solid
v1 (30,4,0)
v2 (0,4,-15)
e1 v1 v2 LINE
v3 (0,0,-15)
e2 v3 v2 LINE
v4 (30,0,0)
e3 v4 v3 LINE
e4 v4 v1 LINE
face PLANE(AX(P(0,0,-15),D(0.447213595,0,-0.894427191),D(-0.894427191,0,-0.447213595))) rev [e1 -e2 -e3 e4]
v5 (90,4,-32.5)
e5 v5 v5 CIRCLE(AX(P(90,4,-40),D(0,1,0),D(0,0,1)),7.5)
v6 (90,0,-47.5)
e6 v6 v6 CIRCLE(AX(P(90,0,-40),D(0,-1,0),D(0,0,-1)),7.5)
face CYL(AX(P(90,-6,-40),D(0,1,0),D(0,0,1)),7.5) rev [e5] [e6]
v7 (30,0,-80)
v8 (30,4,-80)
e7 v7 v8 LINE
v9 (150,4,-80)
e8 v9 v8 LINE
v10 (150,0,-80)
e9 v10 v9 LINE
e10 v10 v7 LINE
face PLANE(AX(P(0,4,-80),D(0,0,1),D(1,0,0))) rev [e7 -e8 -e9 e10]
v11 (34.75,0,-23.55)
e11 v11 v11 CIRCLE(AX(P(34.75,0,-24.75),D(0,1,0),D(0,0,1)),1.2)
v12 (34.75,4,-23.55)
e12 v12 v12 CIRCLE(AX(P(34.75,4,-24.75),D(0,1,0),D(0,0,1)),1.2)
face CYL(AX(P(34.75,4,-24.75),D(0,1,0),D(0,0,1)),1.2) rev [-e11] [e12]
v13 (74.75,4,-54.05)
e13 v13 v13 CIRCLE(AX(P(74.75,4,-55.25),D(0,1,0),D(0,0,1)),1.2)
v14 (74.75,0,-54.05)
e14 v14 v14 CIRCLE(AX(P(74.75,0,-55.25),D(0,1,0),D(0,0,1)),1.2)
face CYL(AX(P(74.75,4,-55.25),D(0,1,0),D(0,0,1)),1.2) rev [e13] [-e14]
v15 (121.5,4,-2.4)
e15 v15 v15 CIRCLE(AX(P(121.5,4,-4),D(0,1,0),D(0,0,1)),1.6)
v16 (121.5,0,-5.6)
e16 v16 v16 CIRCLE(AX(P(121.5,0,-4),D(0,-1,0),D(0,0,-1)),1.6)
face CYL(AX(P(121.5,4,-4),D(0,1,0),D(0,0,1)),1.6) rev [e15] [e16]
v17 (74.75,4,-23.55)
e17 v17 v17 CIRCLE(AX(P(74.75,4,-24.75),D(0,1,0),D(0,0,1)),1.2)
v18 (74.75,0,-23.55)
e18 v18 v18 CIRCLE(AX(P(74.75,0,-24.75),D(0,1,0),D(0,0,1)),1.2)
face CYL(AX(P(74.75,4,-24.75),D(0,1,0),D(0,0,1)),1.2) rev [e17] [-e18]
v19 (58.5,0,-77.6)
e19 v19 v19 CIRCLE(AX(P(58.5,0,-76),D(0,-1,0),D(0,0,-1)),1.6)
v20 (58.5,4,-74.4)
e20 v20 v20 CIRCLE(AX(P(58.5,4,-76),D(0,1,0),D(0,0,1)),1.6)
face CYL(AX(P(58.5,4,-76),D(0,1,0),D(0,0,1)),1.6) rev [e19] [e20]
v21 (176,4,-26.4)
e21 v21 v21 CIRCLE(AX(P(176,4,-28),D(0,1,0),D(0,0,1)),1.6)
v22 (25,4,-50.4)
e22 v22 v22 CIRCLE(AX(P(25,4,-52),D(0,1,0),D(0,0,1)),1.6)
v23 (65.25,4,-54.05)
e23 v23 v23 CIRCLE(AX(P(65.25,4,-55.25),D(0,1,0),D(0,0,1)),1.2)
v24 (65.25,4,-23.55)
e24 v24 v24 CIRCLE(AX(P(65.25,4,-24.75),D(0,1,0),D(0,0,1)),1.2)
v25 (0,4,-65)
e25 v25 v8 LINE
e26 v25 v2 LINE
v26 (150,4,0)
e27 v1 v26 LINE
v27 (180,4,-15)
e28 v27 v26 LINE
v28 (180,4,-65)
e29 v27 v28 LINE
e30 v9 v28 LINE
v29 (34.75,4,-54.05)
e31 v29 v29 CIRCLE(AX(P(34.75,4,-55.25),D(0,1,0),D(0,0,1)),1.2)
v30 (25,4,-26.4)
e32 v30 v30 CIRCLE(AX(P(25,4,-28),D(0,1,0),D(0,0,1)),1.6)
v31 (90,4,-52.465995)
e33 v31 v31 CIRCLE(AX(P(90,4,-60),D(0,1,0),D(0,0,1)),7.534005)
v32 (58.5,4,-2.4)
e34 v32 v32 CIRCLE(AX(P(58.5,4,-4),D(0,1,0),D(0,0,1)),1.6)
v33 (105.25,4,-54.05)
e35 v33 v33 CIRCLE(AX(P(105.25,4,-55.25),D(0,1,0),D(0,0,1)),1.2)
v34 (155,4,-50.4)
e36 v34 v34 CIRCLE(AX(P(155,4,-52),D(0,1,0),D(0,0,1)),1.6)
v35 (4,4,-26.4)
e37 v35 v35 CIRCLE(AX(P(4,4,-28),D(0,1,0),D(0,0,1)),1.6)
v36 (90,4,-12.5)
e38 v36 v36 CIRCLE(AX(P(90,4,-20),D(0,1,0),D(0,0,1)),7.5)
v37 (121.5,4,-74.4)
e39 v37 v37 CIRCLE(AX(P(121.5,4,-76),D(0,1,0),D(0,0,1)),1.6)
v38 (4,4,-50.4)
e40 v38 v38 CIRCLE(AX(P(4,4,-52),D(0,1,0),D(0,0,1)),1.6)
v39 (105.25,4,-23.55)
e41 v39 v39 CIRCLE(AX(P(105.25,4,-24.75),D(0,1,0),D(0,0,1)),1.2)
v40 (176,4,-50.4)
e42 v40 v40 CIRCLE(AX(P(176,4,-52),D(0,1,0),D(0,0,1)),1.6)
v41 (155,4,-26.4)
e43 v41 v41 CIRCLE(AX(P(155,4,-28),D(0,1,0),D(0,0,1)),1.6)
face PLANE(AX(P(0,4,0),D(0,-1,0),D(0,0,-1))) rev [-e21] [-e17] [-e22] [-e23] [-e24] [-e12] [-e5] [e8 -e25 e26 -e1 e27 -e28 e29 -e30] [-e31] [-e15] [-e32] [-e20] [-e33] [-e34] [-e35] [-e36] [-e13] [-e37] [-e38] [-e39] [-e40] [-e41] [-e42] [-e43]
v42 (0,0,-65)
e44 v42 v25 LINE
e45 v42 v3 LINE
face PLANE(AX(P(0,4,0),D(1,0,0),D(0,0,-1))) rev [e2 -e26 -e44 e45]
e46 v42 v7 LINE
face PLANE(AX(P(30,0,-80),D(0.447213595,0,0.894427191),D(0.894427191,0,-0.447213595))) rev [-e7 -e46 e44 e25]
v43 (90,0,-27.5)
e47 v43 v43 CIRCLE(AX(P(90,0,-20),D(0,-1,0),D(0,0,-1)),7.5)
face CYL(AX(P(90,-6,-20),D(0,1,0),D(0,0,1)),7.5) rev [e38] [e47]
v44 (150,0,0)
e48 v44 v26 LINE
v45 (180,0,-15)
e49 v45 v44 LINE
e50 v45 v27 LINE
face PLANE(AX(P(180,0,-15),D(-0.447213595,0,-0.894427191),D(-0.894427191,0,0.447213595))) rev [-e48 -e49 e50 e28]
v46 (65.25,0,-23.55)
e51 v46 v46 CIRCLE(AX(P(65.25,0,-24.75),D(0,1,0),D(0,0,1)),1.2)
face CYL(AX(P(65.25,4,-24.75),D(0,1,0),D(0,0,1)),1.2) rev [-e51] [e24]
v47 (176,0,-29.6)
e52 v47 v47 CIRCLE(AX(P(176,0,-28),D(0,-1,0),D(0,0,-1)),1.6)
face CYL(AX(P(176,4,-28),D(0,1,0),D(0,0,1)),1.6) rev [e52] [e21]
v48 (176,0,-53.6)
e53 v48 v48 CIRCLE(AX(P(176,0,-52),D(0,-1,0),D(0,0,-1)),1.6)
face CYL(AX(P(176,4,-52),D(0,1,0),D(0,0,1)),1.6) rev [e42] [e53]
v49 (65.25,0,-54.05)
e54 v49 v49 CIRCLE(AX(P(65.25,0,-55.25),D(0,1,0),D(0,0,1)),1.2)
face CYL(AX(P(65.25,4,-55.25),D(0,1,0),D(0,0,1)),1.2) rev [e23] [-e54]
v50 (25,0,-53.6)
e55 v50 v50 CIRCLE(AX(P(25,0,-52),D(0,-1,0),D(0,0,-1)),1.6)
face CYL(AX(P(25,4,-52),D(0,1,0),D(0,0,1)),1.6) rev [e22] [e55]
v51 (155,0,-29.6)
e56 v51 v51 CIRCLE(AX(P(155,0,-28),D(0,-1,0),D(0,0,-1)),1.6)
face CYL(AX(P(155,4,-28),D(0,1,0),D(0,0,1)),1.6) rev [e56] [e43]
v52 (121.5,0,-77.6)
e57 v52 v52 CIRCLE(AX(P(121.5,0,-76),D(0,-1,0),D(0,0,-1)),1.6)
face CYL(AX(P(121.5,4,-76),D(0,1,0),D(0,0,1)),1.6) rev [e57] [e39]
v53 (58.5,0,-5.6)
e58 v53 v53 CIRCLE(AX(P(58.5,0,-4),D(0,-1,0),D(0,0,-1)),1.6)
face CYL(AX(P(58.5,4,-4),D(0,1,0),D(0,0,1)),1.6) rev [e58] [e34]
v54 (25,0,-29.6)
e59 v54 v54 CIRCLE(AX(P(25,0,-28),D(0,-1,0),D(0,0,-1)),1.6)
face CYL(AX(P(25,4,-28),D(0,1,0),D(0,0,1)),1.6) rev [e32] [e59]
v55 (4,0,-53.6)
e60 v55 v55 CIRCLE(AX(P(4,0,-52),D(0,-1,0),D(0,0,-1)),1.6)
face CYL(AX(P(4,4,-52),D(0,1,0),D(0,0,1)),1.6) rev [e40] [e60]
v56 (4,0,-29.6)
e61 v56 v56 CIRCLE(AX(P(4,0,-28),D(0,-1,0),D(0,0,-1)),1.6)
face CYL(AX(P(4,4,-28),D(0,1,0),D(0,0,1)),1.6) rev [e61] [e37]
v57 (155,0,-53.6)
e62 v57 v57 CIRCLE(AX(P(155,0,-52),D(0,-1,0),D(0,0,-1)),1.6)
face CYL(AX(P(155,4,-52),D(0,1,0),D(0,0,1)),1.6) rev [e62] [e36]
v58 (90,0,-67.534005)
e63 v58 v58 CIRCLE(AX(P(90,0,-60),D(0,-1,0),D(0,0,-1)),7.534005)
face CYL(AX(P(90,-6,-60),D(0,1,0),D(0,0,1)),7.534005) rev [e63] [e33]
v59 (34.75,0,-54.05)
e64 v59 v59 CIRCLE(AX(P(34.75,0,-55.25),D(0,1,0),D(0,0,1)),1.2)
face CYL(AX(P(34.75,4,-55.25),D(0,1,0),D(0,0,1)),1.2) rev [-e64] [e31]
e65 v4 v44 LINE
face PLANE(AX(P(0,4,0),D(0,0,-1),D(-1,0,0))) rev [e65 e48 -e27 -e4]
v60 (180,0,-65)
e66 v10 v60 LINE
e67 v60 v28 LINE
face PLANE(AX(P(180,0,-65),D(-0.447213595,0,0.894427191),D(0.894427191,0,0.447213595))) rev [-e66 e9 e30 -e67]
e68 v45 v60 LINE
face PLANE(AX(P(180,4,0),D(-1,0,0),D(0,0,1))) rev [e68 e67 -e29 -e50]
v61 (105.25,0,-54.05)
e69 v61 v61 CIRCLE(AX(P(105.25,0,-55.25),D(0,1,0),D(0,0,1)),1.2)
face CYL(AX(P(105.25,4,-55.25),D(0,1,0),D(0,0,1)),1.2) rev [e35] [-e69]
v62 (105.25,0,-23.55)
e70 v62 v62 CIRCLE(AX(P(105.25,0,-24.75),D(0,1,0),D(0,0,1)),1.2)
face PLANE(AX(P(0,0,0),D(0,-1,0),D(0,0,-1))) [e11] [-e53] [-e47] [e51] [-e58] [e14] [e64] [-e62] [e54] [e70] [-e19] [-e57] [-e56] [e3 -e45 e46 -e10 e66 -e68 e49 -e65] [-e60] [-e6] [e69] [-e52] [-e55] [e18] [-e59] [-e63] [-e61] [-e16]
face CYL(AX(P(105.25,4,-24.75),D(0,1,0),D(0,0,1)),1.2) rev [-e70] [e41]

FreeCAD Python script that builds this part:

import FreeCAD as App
import Part
import Sketcher
from FreeCAD import Vector
Q = App.Units.Quantity


def add_polygon(sketch, points):
    """Adds a closed chain of lines whose ends are joined by coincident constraints."""
    first, n = sketch.GeometryCount, len(points)
    for a, b in zip(points, points[1:] + points[:1]):
        sketch.addGeometry(Part.LineSegment(App.Vector(*a, 0), App.Vector(*b, 0)), False)
    for i in range(n):
        sketch.addConstraint(Sketcher.Constraint("Coincident", first + i, 2, first + (i + 1) % n, 1))

doc = App.newDocument("Part")
params = doc.addObject("Spreadsheet::Sheet", "Params")
for row, (alias, value) in enumerate([
    ("sketch1_width", "180 mm"),
    ("sketch1_height", "80 mm"),
    ("pad1_length", "4 mm"),
    ("sketch2_width", "30 mm"),
    ("sketch2_height", "15 mm"),
    ("pocket1_length", "4 mm"),
    ("sketch3_diameter", "2.4 mm"),
    ("hole_diameter", "2.4 mm"),
    ("sketch4_diameter", "2.4 mm"),
    ("hole2_diameter", "2.4 mm"),
    ("sketch5_diameter", "3.2 mm"),
    ("hole3_diameter", "3.2 mm"),
    ("hole3_depth", "4 mm"),
    ("sketch6_diameter", "15 mm"),
    ("pocket2_length", "10 mm"),
], start=1):
    params.set(f"A{row}", alias)
    params.set(f"B{row}", "=" + value)
    params.setAlias(f"B{row}", alias)

body = doc.addObject("PartDesign::Body", "Body")

# Sketch on XZ plane
sketch1 = body.newObject("Sketcher::SketchObject", "Sketch")
sketch1.AttachmentSupport = (doc.getObject("XZ_Plane"), [""])
sketch1.MapMode = "FlatFace"
add_polygon(sketch1, [(0, -80), (0, 0), (180, 0), (180, -80)])  # lines 0-3
sketch1.addConstraint(Sketcher.Constraint("Vertical", 0))
sketch1.addConstraint(Sketcher.Constraint("Horizontal", 1))
sketch1.addConstraint(Sketcher.Constraint("Vertical", 2))
sketch1.addConstraint(Sketcher.Constraint("Horizontal", 3))
sketch1.addConstraint(Sketcher.Constraint("Coincident", 0, 2, -1, 1))
sketch1.addConstraint(Sketcher.Constraint("DistanceX", 1, 1, 1, 2, Q("180 mm")))
sketch1.addConstraint(Sketcher.Constraint("DistanceY", 0, 1, 0, 2, Q("80 mm")))
sketch1.setExpression("Constraints[9]", "Params.sketch1_width")
sketch1.setExpression("Constraints[10]", "Params.sketch1_height")
pad1 = body.newObject("PartDesign::Pad", "Pad")
pad1.Profile = sketch1
pad1.setExpression("Length", "Params.pad1_length")
pad1.Reversed = True

# Sketch on XZ plane
sketch2 = body.newObject("Sketcher::SketchObject", "Sketch001")
sketch2.AttachmentSupport = (doc.getObject("XZ_Plane"), [""])
sketch2.MapMode = "FlatFace"
sketch2.AttachmentOffset = App.Placement(Vector(0, 0, -4), App.Rotation())
add_polygon(sketch2, [(30, 0), (0, -15), (0, 0)])  # lines 0-2
add_polygon(sketch2, [(0, -65), (30, -80), (0, -80)])  # lines 3-5
add_polygon(sketch2, [(180, -80), (150, -80), (180, -65)])  # lines 6-8
add_polygon(sketch2, [(180, -15), (150, 0), (180, 0)])  # lines 9-11
sketch2.addConstraint(Sketcher.Constraint("Vertical", 1))
sketch2.addConstraint(Sketcher.Constraint("Horizontal", 2))
sketch2.addConstraint(Sketcher.Constraint("Horizontal", 4))
sketch2.addConstraint(Sketcher.Constraint("Vertical", 5))
sketch2.addConstraint(Sketcher.Constraint("Horizontal", 6))
sketch2.addConstraint(Sketcher.Constraint("Vertical", 8))
sketch2.addConstraint(Sketcher.Constraint("Horizontal", 10))
sketch2.addConstraint(Sketcher.Constraint("Vertical", 11))
sketch2.addConstraint(Sketcher.Constraint("Coincident", 1, 2, -1, 1))
sketch2.addConstraint(Sketcher.Constraint("PointOnObject", 4, 2, -2))
sketch2.addConstraint(Sketcher.Constraint("PointOnObject", 9, 2, -1))
sketch2.addConstraint(Sketcher.Constraint("Parallel", 0, 7))
sketch2.addConstraint(Sketcher.Constraint("Parallel", 3, 9))
sketch2.addConstraint(Sketcher.Constraint("Horizontal", 4, 2, 6, 2))
sketch2.addConstraint(Sketcher.Constraint("Horizontal", 5, 2, 7, 2))
sketch2.addConstraint(Sketcher.Constraint("Horizontal", 0, 2, 11, 2))
sketch2.addConstraint(Sketcher.Constraint("Vertical", 2, 2, 3, 2))
sketch2.addConstraint(Sketcher.Constraint("Vertical", 6, 2, 9, 2))
sketch2.addConstraint(Sketcher.Constraint("Vertical", 8, 2, 10, 2))
sketch2.addConstraint(Sketcher.Constraint("DistanceX", 2, 1, 2, 2, Q("30 mm")))
sketch2.addConstraint(Sketcher.Constraint("DistanceY", 1, 1, 1, 2, Q("15 mm")))
sketch2.addConstraint(Sketcher.Constraint("DistanceY", 3, 2, -1, 1, Q("80 mm")))
sketch2.addConstraint(Sketcher.Constraint("DistanceX", -1, 1, 6, 2, Q("150 mm")))
sketch2.setExpression("Constraints[31]", "Params.sketch2_width")
sketch2.setExpression("Constraints[32]", "Params.sketch2_height")
pocket1 = body.newObject("PartDesign::Pocket", "Pocket")
pocket1.Profile = sketch2
pocket1.setExpression("Length", "Params.pocket1_length")
pocket1.Reversed = True

# Sketch on XZ plane
sketch3 = body.newObject("Sketcher::SketchObject", "Sketch002")
sketch3.AttachmentSupport = (doc.getObject("XZ_Plane"), [""])
sketch3.MapMode = "FlatFace"
sketch3.AttachmentOffset = App.Placement(Vector(0, 0, -4), App.Rotation())
sketch3.addGeometry(Part.Circle(Vector(74.8, -55.2, 0), Vector(0, 0, 1), 1.2), False)
sketch3.addGeometry(Part.Circle(Vector(105.2, -55.2, 0), Vector(0, 0, 1), 1.2), False)
sketch3.addGeometry(Part.Circle(Vector(105.2, -24.8, 0), Vector(0, 0, 1), 1.2), False)
sketch3.addGeometry(Part.Circle(Vector(74.8, -24.8, 0), Vector(0, 0, 1), 1.2), False)
sketch3.addConstraint(Sketcher.Constraint("Equal", 0, 1))
sketch3.addConstraint(Sketcher.Constraint("Equal", 1, 2))
sketch3.addConstraint(Sketcher.Constraint("Equal", 2, 3))
sketch3.addConstraint(Sketcher.Constraint("Horizontal", 0, 3, 1, 3))
sketch3.addConstraint(Sketcher.Constraint("Horizontal", 2, 3, 3, 3))
sketch3.addConstraint(Sketcher.Constraint("Vertical", 1, 3, 2, 3))
sketch3.addConstraint(Sketcher.Constraint("Vertical", 0, 3, 3, 3))
sketch3.addConstraint(Sketcher.Constraint("Diameter", 0, Q("2.4 mm")))
sketch3.addConstraint(Sketcher.Constraint("DistanceX", 0, 3, 1, 3, Q("30.5 mm")))
sketch3.addConstraint(Sketcher.Constraint("DistanceY", 1, 3, 2, 3, Q("30.5 mm")))
sketch3.addConstraint(Sketcher.Constraint("DistanceX", -1, 1, 0, 3, Q("74.75 mm")))
sketch3.addConstraint(Sketcher.Constraint("DistanceY", 0, 3, -1, 1, Q("55.25 mm")))
sketch3.setExpression("Constraints[7]", "Params.sketch3_diameter")
doc.recompute()
hole = body.newObject("PartDesign::Hole", "Hole")
hole.Profile = sketch3
hole.ThreadType = "None"
hole.setExpression("Diameter", "Params.hole_diameter")
hole.DepthType = "ThroughAll"
hole.Reversed = True

# Sketch on XZ plane
sketch4 = body.newObject("Sketcher::SketchObject", "Sketch003")
sketch4.AttachmentSupport = (doc.getObject("XZ_Plane"), [""])
sketch4.MapMode = "FlatFace"
sketch4.AttachmentOffset = App.Placement(Vector(0, 0, -4), App.Rotation())
sketch4.addGeometry(Part.Circle(Vector(34.8, -24.8, 0), Vector(0, 0, 1), 1.2), False)
sketch4.addGeometry(Part.Circle(Vector(65.2, -24.8, 0), Vector(0, 0, 1), 1.2), False)
sketch4.addGeometry(Part.Circle(Vector(65.2, -55.2, 0), Vector(0, 0, 1), 1.2), False)
sketch4.addGeometry(Part.Circle(Vector(34.8, -55.2, 0), Vector(0, 0, 1), 1.2), False)
sketch4.addConstraint(Sketcher.Constraint("Equal", 0, 1))
sketch4.addConstraint(Sketcher.Constraint("Equal", 1, 2))
sketch4.addConstraint(Sketcher.Constraint("Equal", 2, 3))
sketch4.addConstraint(Sketcher.Constraint("Horizontal", 0, 3, 1, 3))
sketch4.addConstraint(Sketcher.Constraint("Horizontal", 2, 3, 3, 3))
sketch4.addConstraint(Sketcher.Constraint("Vertical", 1, 3, 2, 3))
sketch4.addConstraint(Sketcher.Constraint("Vertical", 0, 3, 3, 3))
sketch4.addConstraint(Sketcher.Constraint("Diameter", 0, Q("2.4 mm")))
sketch4.addConstraint(Sketcher.Constraint("DistanceX", 0, 3, 1, 3, Q("30.5 mm")))
sketch4.addConstraint(Sketcher.Constraint("DistanceY", 2, 3, 1, 3, Q("30.5 mm")))
sketch4.addConstraint(Sketcher.Constraint("DistanceX", -1, 1, 0, 3, Q("34.75 mm")))
sketch4.addConstraint(Sketcher.Constraint("DistanceY", 0, 3, -1, 1, Q("24.75 mm")))
sketch4.setExpression("Constraints[7]", "Params.sketch4_diameter")
doc.recompute()
hole2 = body.newObject("PartDesign::Hole", "Hole001")
hole2.Profile = sketch4
hole2.ThreadType = "None"
hole2.setExpression("Diameter", "Params.hole2_diameter")
hole2.DepthType = "ThroughAll"
hole2.Reversed = True

# Sketch on XZ plane
sketch5 = body.newObject("Sketcher::SketchObject", "Sketch004")
sketch5.AttachmentSupport = (doc.getObject("XZ_Plane"), [""])
sketch5.MapMode = "FlatFace"
sketch5.AttachmentOffset = App.Placement(Vector(0, 0, -4), App.Rotation())
sketch5.addGeometry(Part.Circle(Vector(4, -52, 0), Vector(0, 0, 1), 1.6), False)
sketch5.addGeometry(Part.Circle(Vector(4, -28, 0), Vector(0, 0, 1), 1.6), False)
sketch5.addGeometry(Part.Circle(Vector(25, -28, 0), Vector(0, 0, 1), 1.6), False)
sketch5.addGeometry(Part.Circle(Vector(25, -52, 0), Vector(0, 0, 1), 1.6), False)
sketch5.addGeometry(Part.Circle(Vector(58.5, -76, 0), Vector(0, 0, 1), 1.6), False)
sketch5.addGeometry(Part.Circle(Vector(58.5, -4, 0), Vector(0, 0, 1), 1.6), False)
sketch5.addGeometry(Part.Circle(Vector(121.5, -4, 0), Vector(0, 0, 1), 1.6), False)
sketch5.addGeometry(Part.Circle(Vector(121.5, -76, 0), Vector(0, 0, 1), 1.6), False)
sketch5.addGeometry(Part.Circle(Vector(155, -52, 0), Vector(0, 0, 1), 1.6), False)
sketch5.addGeometry(Part.Circle(Vector(176, -52, 0), Vector(0, 0, 1), 1.6), False)
sketch5.addGeometry(Part.Circle(Vector(176, -28, 0), Vector(0, 0, 1), 1.6), False)
sketch5.addGeometry(Part.Circle(Vector(155, -28, 0), Vector(0, 0, 1), 1.6), False)
sketch5.addConstraint(Sketcher.Constraint("Equal", 0, 1))
sketch5.addConstraint(Sketcher.Constraint("Equal", 1, 2))
sketch5.addConstraint(Sketcher.Constraint("Equal", 2, 3))
sketch5.addConstraint(Sketcher.Constraint("Equal", 3, 4))
sketch5.addConstraint(Sketcher.Constraint("Equal", 4, 5))
sketch5.addConstraint(Sketcher.Constraint("Equal", 5, 6))
sketch5.addConstraint(Sketcher.Constraint("Equal", 6, 7))
sketch5.addConstraint(Sketcher.Constraint("Equal", 7, 8))
sketch5.addConstraint(Sketcher.Constraint("Equal", 8, 9))
sketch5.addConstraint(Sketcher.Constraint("Equal", 9, 10))
sketch5.addConstraint(Sketcher.Constraint("Equal", 10, 11))
sketch5.addConstraint(Sketcher.Constraint("Horizontal", 1, 3, 2, 3))
sketch5.addConstraint(Sketcher.Constraint("Horizontal", 0, 3, 3, 3))
sketch5.addConstraint(Sketcher.Constraint("Horizontal", 5, 3, 6, 3))
sketch5.addConstraint(Sketcher.Constraint("Horizontal", 4, 3, 7, 3))
sketch5.addConstraint(Sketcher.Constraint("Horizontal", 3, 3, 8, 3))
sketch5.addConstraint(Sketcher.Constraint("Horizontal", 8, 3, 9, 3))
sketch5.addConstraint(Sketcher.Constraint("Horizontal", 2, 3, 10, 3))
sketch5.addConstraint(Sketcher.Constraint("Horizontal", 10, 3, 11, 3))
sketch5.addConstraint(Sketcher.Constraint("Vertical", 0, 3, 1, 3))
sketch5.addConstraint(Sketcher.Constraint("Vertical", 2, 3, 3, 3))
sketch5.addConstraint(Sketcher.Constraint("Vertical", 4, 3, 5, 3))
sketch5.addConstraint(Sketcher.Constraint("Vertical", 6, 3, 7, 3))
sketch5.addConstraint(Sketcher.Constraint("Vertical", 9, 3, 10, 3))
sketch5.addConstraint(Sketcher.Constraint("Vertical", 8, 3, 11, 3))
sketch5.addConstraint(Sketcher.Constraint("Diameter", 0, Q("3.2 mm")))
sketch5.addConstraint(Sketcher.Constraint("DistanceX", -1, 1, 0, 3, Q("4 mm")))
sketch5.addConstraint(Sketcher.Constraint("DistanceY", 0, 3, -1, 1, Q("52 mm")))
sketch5.addConstraint(Sketcher.Constraint("DistanceY", 1, 3, -1, 1, Q("28 mm")))
sketch5.addConstraint(Sketcher.Constraint("DistanceX", -1, 1, 2, 3, Q("25 mm")))
sketch5.addConstraint(Sketcher.Constraint("DistanceY", 4, 3, -1, 1, Q("76 mm")))
sketch5.addConstraint(Sketcher.Constraint("DistanceY", 5, 3, -1, 1, Q("4 mm")))
sketch5.addConstraint(Sketcher.Constraint("DistanceX", -1, 1, 8, 3, Q("155 mm")))
sketch5.addConstraint(Sketcher.Constraint("DistanceX", -1, 1, 9, 3, Q("176 mm")))
sketch5.addConstraint(Sketcher.Constraint("DistanceX", 5, 3, 6, 3, Q("63 mm")))
sketch5.addConstraint(Sketcher.Constraint("DistanceX", -1, 1, 4, 3, Q("58.5 mm")))
sketch5.setExpression("Constraints[25]", "Params.sketch5_diameter")
doc.recompute()
hole3 = body.newObject("PartDesign::Hole", "Hole002")
hole3.Profile = sketch5
hole3.ThreadType = "None"
hole3.setExpression("Diameter", "Params.hole3_diameter")
hole3.DepthType = "Dimension"
hole3.setExpression("Depth", "Params.hole3_depth")
hole3.DrillPoint = "Flat"
hole3.Reversed = True

# Sketch on XZ plane
sketch6 = body.newObject("Sketcher::SketchObject", "Sketch005")
sketch6.AttachmentSupport = (doc.getObject("XZ_Plane"), [""])
sketch6.MapMode = "FlatFace"
sketch6.AttachmentOffset = App.Placement(Vector(0, 0, -4), App.Rotation())
sketch6.addGeometry(Part.Circle(Vector(90, -60, 0), Vector(0, 0, 1), 8), False)
sketch6.addGeometry(Part.Circle(Vector(90, -40, 0), Vector(0, 0, 1), 8), False)
sketch6.addGeometry(Part.Circle(Vector(90, -20, 0), Vector(0, 0, 1), 8), False)
sketch6.addConstraint(Sketcher.Constraint("Equal", 1, 2))
sketch6.addConstraint(Sketcher.Constraint("Vertical", 0, 3, 1, 3))
sketch6.addConstraint(Sketcher.Constraint("Vertical", 1, 3, 2, 3))
sketch6.addConstraint(Sketcher.Constraint("Diameter", 1, Q("15 mm")))
sketch6.addConstraint(Sketcher.Constraint("DistanceX", -1, 1, 0, 3, Q("90 mm")))
sketch6.addConstraint(Sketcher.Constraint("DistanceY", 0, 3, -1, 1, Q("60 mm")))
sketch6.addConstraint(Sketcher.Constraint("DistanceY", 1, 3, -1, 1, Q("40 mm")))
sketch6.addConstraint(Sketcher.Constraint("DistanceY", 2, 3, -1, 1, Q("20 mm")))
sketch6.addConstraint(Sketcher.Constraint("Diameter", 0, Q("15.06801 mm")))
sketch6.setExpression("Constraints[3]", "Params.sketch6_diameter")
pocket2 = body.newObject("PartDesign::Pocket", "Pocket001")
pocket2.Profile = sketch6
pocket2.setExpression("Length", "Params.pocket2_length")
pocket2.Reversed = True

doc.recompute()
